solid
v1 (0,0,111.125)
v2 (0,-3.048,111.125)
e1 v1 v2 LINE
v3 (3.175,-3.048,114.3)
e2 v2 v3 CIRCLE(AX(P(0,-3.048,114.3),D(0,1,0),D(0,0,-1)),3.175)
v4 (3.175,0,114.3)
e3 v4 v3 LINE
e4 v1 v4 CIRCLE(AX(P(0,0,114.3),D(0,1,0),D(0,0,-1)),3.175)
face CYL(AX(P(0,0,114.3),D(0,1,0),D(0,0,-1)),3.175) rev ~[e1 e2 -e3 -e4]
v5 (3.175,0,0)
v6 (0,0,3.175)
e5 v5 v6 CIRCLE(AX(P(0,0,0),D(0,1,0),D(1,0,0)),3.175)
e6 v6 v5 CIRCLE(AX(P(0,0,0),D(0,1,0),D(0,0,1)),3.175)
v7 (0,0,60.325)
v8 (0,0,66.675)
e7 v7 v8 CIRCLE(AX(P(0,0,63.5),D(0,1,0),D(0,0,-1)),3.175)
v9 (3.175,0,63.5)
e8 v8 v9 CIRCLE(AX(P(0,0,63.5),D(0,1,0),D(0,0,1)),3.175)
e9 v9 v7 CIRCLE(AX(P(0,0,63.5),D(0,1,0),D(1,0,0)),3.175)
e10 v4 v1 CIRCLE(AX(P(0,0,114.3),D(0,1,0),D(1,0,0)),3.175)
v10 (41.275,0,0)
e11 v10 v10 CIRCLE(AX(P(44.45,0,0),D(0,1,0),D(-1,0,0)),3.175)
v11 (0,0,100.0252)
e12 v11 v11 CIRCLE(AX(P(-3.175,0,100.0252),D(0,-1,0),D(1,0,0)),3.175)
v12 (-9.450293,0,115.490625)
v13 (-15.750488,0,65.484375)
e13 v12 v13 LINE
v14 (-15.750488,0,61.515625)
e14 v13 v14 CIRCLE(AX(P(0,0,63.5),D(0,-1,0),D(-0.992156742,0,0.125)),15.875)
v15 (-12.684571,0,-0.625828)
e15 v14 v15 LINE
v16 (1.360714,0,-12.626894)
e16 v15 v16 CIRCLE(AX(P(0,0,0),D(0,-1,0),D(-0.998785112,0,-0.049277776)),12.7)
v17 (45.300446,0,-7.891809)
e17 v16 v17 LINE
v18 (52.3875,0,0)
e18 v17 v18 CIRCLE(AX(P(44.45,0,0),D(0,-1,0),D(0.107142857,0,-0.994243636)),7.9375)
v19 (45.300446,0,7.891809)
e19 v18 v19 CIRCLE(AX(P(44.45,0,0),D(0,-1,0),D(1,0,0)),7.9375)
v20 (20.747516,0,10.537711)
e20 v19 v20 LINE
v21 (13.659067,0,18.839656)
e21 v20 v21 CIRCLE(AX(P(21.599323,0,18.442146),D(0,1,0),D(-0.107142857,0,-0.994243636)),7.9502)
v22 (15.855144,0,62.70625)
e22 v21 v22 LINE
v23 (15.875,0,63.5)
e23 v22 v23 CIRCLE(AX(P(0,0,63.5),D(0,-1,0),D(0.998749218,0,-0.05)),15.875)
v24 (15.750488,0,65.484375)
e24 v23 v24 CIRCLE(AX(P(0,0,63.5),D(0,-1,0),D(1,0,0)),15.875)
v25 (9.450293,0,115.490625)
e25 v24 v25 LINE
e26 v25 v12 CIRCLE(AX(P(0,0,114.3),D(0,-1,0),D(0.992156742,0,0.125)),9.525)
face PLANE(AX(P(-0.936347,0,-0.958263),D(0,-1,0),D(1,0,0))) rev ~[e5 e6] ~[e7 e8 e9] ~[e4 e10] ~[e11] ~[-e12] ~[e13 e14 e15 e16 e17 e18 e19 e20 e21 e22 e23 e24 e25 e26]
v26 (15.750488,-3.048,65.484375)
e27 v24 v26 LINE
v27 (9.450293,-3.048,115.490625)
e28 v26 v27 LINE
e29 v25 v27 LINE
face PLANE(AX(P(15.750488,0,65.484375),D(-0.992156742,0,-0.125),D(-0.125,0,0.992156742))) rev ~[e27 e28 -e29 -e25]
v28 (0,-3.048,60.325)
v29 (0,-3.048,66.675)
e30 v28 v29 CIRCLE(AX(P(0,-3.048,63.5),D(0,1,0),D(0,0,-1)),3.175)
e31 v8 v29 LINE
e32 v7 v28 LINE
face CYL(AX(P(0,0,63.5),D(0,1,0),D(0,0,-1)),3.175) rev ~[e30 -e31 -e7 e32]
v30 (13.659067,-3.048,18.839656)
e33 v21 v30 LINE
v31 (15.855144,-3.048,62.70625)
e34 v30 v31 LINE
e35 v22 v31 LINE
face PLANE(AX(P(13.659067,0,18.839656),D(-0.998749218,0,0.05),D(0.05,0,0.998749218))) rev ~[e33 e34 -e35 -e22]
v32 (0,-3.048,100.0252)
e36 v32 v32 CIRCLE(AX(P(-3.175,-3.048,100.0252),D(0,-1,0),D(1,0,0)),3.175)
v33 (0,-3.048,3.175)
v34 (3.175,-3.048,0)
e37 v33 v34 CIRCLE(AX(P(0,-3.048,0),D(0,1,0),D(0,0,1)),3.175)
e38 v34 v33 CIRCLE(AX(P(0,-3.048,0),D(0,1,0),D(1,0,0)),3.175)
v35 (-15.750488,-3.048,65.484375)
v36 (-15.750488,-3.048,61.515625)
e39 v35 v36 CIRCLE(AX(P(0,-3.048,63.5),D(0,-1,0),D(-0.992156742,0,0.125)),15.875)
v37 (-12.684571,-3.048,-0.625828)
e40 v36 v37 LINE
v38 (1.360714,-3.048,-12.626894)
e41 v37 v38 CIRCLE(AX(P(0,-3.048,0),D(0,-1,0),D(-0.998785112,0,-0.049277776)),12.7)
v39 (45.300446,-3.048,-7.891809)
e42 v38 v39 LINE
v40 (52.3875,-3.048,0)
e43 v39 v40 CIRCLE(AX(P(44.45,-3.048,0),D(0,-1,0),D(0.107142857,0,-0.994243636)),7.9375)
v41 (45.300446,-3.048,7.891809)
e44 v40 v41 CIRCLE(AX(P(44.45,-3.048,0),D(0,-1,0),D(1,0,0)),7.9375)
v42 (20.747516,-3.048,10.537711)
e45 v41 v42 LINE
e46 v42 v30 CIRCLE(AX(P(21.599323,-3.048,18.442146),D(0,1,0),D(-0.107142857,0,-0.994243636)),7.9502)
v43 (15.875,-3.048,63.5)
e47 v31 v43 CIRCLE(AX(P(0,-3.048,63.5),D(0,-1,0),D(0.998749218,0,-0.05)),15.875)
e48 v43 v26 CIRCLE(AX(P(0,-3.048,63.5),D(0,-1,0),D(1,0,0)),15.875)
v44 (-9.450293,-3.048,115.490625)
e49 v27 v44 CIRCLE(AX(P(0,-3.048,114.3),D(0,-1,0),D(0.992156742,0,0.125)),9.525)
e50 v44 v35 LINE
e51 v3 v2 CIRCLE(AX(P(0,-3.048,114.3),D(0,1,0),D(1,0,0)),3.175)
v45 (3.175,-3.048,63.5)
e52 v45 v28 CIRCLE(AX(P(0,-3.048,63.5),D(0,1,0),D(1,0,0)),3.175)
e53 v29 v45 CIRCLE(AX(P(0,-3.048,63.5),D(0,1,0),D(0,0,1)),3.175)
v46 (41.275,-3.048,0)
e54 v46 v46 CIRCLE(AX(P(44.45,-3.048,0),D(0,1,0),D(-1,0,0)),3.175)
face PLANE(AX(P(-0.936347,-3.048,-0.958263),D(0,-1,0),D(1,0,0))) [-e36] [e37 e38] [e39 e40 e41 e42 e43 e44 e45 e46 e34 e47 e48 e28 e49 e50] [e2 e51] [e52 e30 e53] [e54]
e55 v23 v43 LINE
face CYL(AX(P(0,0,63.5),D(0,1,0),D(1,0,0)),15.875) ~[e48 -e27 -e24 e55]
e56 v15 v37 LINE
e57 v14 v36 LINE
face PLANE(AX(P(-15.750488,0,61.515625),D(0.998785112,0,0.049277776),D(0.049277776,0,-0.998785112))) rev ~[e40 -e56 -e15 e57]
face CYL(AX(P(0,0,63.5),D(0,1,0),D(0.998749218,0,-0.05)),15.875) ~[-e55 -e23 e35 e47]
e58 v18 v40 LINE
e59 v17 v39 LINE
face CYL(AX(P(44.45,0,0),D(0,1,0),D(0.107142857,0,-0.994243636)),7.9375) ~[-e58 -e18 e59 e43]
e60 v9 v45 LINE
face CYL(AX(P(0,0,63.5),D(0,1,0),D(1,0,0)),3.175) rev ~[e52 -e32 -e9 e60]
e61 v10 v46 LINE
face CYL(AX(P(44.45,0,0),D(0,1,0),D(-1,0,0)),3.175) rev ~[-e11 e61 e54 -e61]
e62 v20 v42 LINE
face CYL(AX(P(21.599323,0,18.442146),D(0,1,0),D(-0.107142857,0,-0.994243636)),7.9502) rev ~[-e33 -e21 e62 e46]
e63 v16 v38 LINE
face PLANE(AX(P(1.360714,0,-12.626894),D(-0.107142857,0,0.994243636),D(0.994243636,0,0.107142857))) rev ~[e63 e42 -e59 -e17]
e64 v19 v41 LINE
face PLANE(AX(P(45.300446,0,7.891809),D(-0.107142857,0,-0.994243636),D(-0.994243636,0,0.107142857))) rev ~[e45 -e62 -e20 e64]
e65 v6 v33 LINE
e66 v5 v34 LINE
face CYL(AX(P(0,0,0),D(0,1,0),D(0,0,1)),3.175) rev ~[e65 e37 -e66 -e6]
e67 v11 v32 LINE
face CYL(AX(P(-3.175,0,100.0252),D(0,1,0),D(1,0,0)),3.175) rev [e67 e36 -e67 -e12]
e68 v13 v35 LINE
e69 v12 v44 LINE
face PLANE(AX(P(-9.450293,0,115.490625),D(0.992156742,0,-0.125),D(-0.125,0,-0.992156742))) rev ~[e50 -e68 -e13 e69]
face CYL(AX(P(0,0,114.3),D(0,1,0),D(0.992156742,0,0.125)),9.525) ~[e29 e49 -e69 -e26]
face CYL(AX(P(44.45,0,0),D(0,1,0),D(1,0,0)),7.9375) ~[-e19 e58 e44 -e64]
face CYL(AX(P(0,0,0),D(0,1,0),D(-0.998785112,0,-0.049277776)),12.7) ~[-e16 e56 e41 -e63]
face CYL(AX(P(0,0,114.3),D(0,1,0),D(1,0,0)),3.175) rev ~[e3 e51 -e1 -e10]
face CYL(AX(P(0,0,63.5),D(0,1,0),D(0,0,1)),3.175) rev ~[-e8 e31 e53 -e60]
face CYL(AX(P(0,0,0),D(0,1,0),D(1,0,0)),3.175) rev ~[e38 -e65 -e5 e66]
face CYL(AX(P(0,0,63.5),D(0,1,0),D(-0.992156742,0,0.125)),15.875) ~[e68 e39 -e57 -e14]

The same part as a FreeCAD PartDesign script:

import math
import FreeCAD as App
import Part
import Sketcher

V = App.Vector
Q = App.Units.Quantity

doc = App.newDocument("Part")
params = doc.addObject("Spreadsheet::Sheet", "Params")
for row, (alias, value) in enumerate([
    ("sketch1_radius", "0.5 in"),
    ("sketch1_diameter", "0.25 in"),
    ("sketch1_radius2", "0.625 in"),
    ("sketch1_radius3", "0.3125 in"),
    ("sketch1_radius4", "0.313 in"),
    ("pad1_length", "0.12 in"),
], start=1):
    params.set(f"A{row}", alias)
    params.set(f"B{row}", "=" + value)
    params.setAlias(f"B{row}", alias)

body = doc.addObject("PartDesign::Body", "Body")

# Sketch on XZ plane
sketch1 = body.newObject("Sketcher::SketchObject", "Sketch")
sketch1.AttachmentSupport = (doc.getObject("XZ_Plane"), [""])
sketch1.MapMode = "FlatFace"
sketch1.addGeometry(Part.LineSegment(V(-9.5, 115.5, 0), V(-15.8, 65.5, 0)), False)
sketch1.addGeometry(Part.ArcOfCircle(Part.Circle(V(0, 63.5, 0), V(0, 0, 1), 15.9), math.radians(172.82), math.radians(187.18)), False)
sketch1.addGeometry(Part.LineSegment(V(-15.8, 61.5, 0), V(-12.7, -0.6, 0)), False)
sketch1.addGeometry(Part.ArcOfCircle(Part.Circle(V(0, 0, 0), V(0, 0, 1), 12.7), math.radians(-177), math.radians(-84)), False)
sketch1.addGeometry(Part.LineSegment(V(1.4, -12.6, 0), V(45.3, -7.9, 0)), False)
sketch1.addGeometry(Part.ArcOfCircle(Part.Circle(V(44.5, 0, 0), V(0, 0, 1), 7.9), math.radians(-84), math.radians(0)), False)
sketch1.addGeometry(Part.ArcOfCircle(Part.Circle(V(44.5, 0, 0), V(0, 0, 1), 7.9), math.radians(0), math.radians(84)), False)
sketch1.addGeometry(Part.LineSegment(V(45.3, 7.9, 0), V(20.7, 10.5, 0)), False)
sketch1.addGeometry(Part.ArcOfCircle(Part.Circle(V(21.6, 18.4, 0), V(0, 0, 1), 8), math.radians(177), math.radians(264)), False)
sketch1.addGeometry(Part.LineSegment(V(13.7, 18.8, 0), V(15.9, 62.7, 0)), False)
sketch1.addGeometry(Part.ArcOfCircle(Part.Circle(V(0, 63.5, 0), V(0, 0, 1), 15.9), math.radians(-2.87), math.radians(0)), False)
sketch1.addGeometry(Part.ArcOfCircle(Part.Circle(V(0, 63.5, 0), V(0, 0, 1), 15.9), math.radians(0), math.radians(7.18)), False)
sketch1.addGeometry(Part.LineSegment(V(15.8, 65.5, 0), V(9.5, 115.5, 0)), False)
sketch1.addGeometry(Part.ArcOfCircle(Part.Circle(V(0, 114.3, 0), V(0, 0, 1), 9.5), math.radians(7), math.radians(173)), False)
sketch1.addGeometry(Part.ArcOfCircle(Part.Circle(V(0, 0, 0), V(0, 0, 1), 3.2), math.radians(90), math.radians(360)), False)
sketch1.addGeometry(Part.ArcOfCircle(Part.Circle(V(0, 0, 0), V(0, 0, 1), 3.2), math.radians(0), math.radians(90)), False)
sketch1.addGeometry(Part.Circle(V(44.5, 0, 0), V(0, 0, 1), 3.2), False)
sketch1.addGeometry(Part.ArcOfCircle(Part.Circle(V(0, 63.5, 0), V(0, 0, 1), 3.2), math.radians(90), math.radians(270)), False)
sketch1.addGeometry(Part.ArcOfCircle(Part.Circle(V(0, 63.5, 0), V(0, 0, 1), 3.2), math.radians(0), math.radians(90)), False)
sketch1.addGeometry(Part.ArcOfCircle(Part.Circle(V(0, 63.5, 0), V(0, 0, 1), 3.2), math.radians(-90), math.radians(0)), False)
sketch1.addGeometry(Part.Circle(V(-3.2, 100, 0), V(0, 0, 1), 3.2), False)
sketch1.addGeometry(Part.ArcOfCircle(Part.Circle(V(0, 114.3, 0), V(0, 0, 1), 3.2), math.radians(0), math.radians(270)), False)
sketch1.addGeometry(Part.ArcOfCircle(Part.Circle(V(0, 114.3, 0), V(0, 0, 1), 3.2), math.radians(-90), math.radians(0)), False)
sketch1.addConstraint(Sketcher.Constraint("Tangent", 0, 2, 1, 1))
sketch1.addConstraint(Sketcher.Constraint("Coincident", 1, 2, 2, 1))
sketch1.addConstraint(Sketcher.Constraint("Tangent", 2, 2, 3, 1))
sketch1.addConstraint(Sketcher.Constraint("Tangent", 3, 2, 4, 1))
sketch1.addConstraint(Sketcher.Constraint("Tangent", 4, 2, 5, 1))
sketch1.addConstraint(Sketcher.Constraint("Tangent", 5, 2, 6, 1))
sketch1.addConstraint(Sketcher.Constraint("Tangent", 6, 2, 7, 1))
sketch1.addConstraint(Sketcher.Constraint("Tangent", 7, 2, 8, 2))
sketch1.addConstraint(Sketcher.Constraint("Tangent", 8, 1, 9, 1))
sketch1.addConstraint(Sketcher.Constraint("Tangent", 9, 2, 10, 1))
sketch1.addConstraint(Sketcher.Constraint("Tangent", 10, 2, 11, 1))
sketch1.addConstraint(Sketcher.Constraint("Tangent", 11, 2, 12, 1))
sketch1.addConstraint(Sketcher.Constraint("Tangent", 12, 2, 13, 1))
sketch1.addConstraint(Sketcher.Constraint("Tangent", 13, 2, 0, 1))
sketch1.addConstraint(Sketcher.Constraint("Tangent", 14, 1, 15, 2))
sketch1.addConstraint(Sketcher.Constraint("Coincident", 15, 1, 14, 2))
sketch1.addConstraint(Sketcher.Constraint("Tangent", 17, 1, 18, 2))
sketch1.addConstraint(Sketcher.Constraint("Tangent", 18, 1, 19, 2))
sketch1.addConstraint(Sketcher.Constraint("Tangent", 19, 1, 17, 2))
sketch1.addConstraint(Sketcher.Constraint("Tangent", 21, 1, 22, 2))
sketch1.addConstraint(Sketcher.Constraint("Coincident", 22, 1, 21, 2))
sketch1.addConstraint(Sketcher.Constraint("Coincident", 3, 3, -1, 1))
sketch1.addConstraint(Sketcher.Constraint("Coincident", 14, 3, -1, 1))
sketch1.addConstraint(Sketcher.Constraint("Coincident", 10, 3, 1, 3))
sketch1.addConstraint(Sketcher.Constraint("Coincident", 16, 3, 5, 3))
sketch1.addConstraint(Sketcher.Constraint("Coincident", 17, 3, 1, 3))
sketch1.addConstraint(Sketcher.Constraint("Coincident", 21, 3, 13, 3))
sketch1.addConstraint(Sketcher.Constraint("Equal", 5, 6))
sketch1.addConstraint(Sketcher.Constraint("Equal", 1, 10))
sketch1.addConstraint(Sketcher.Constraint("Equal", 10, 11))
sketch1.addConstraint(Sketcher.Constraint("Equal", 15, 16))
sketch1.addConstraint(Sketcher.Constraint("Equal", 16, 17))
sketch1.addConstraint(Sketcher.Constraint("Equal", 19, 20))
sketch1.addConstraint(Sketcher.Constraint("Equal", 20, 21))
sketch1.addConstraint(Sketcher.Constraint("Symmetric", 0, 2, 11, 2, -2))
sketch1.addConstraint(Sketcher.Constraint("Symmetric", 4, 2, 6, 2, -1))
sketch1.addConstraint(Sketcher.Constraint("PointOnObject", 5, 2, -1))
sketch1.addConstraint(Sketcher.Constraint("PointOnObject", 14, 1, -2))
sketch1.addConstraint(Sketcher.Constraint("PointOnObject", 15, 1, -1))
sketch1.addConstraint(Sketcher.Constraint("PointOnObject", 17, 1, -2))
sketch1.addConstraint(Sketcher.Constraint("PointOnObject", 19, 1, -2))
sketch1.addConstraint(Sketcher.Constraint("PointOnObject", 22, 1, -2))
sketch1.addConstraint(Sketcher.Constraint("Horizontal", 19, 3, 10, 2))
sketch1.addConstraint(Sketcher.Constraint("Horizontal", 10, 2, 18, 1))
sketch1.addConstraint(Sketcher.Constraint("Horizontal", 22, 3, 21, 1))
sketch1.addConstraint(Sketcher.Constraint("Vertical", 0, 2, 1, 2))
sketch1.addConstraint(Sketcher.Constraint("Radius", 3, Q("0.5 in")))
sketch1.addConstraint(Sketcher.Constraint("Diameter", 16, Q("0.25 in")))
sketch1.addConstraint(Sketcher.Constraint("Radius", 1, Q("0.625 in")))
sketch1.addConstraint(Sketcher.Constraint("Radius", 5, Q("0.3125 in")))
sketch1.addConstraint(Sketcher.Constraint("Radius", 8, Q("0.313 in")))
sketch1.addConstraint(Sketcher.Constraint("Radius", 13, Q("0.375 in")))
sketch1.addConstraint(Sketcher.Constraint("DistanceY", 1, 3, 13, 3, Q("2 in")))
sketch1.addConstraint(Sketcher.Constraint("DistanceY", -1, 1, 1, 3, Q("2.5 in")))
sketch1.addConstraint(Sketcher.Constraint("DistanceX", -1, 1, 5, 3, Q("1.75 in")))
sketch1.addConstraint(Sketcher.Constraint("DistanceX", 20, 3, -1, 1, Q("0.125 in")))
sketch1.addConstraint(Sketcher.Constraint("DistanceY", -1, 1, 20, 3, Q("3.938 in")))
sketch1.addConstraint(Sketcher.Constraint("DistanceY", -1, 1, 9, 2, Q("2.46875 in")))
sketch1.setExpression("Constraints[46]", "Params.sketch1_radius")
sketch1.setExpression("Constraints[47]", "Params.sketch1_diameter")
sketch1.setExpression("Constraints[48]", "Params.sketch1_radius2")
sketch1.setExpression("Constraints[49]", "Params.sketch1_radius3")
sketch1.setExpression("Constraints[50]", "Params.sketch1_radius4")
pad1 = body.newObject("PartDesign::Pad", "Pad")
pad1.Profile = sketch1
pad1.setExpression("Length", "Params.pad1_length")

doc.recompute()
